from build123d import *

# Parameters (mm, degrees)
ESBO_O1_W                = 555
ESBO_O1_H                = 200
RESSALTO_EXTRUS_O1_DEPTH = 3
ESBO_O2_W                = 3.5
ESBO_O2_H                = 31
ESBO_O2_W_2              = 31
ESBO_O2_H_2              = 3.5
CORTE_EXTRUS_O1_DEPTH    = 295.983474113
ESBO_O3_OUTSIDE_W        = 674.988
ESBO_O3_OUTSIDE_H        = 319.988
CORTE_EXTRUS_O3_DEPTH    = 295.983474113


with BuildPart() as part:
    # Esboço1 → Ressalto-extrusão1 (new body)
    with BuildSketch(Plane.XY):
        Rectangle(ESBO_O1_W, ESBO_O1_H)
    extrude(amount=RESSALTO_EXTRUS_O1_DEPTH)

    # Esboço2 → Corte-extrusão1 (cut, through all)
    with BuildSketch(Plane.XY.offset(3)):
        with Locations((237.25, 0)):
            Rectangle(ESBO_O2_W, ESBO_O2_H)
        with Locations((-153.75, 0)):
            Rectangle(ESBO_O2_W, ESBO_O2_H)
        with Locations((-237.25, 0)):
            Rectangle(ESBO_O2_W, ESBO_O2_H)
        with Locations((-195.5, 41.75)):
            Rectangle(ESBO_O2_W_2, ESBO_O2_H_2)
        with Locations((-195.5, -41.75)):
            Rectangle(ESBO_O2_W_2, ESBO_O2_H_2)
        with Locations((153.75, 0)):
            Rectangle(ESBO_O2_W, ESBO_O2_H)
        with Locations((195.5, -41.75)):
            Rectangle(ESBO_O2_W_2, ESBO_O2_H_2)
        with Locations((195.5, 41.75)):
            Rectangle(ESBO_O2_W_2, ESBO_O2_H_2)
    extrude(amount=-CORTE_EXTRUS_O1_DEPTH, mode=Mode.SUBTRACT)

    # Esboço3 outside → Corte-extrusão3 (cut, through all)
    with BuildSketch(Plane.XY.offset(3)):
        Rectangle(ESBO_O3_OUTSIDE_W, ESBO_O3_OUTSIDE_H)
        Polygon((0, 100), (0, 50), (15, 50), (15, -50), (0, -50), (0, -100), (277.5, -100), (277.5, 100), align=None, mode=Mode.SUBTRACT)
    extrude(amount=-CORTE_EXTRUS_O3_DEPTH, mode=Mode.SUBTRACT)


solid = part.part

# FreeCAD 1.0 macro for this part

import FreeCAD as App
import Part
import Sketcher
from FreeCAD import Vector
Q = App.Units.Quantity

doc = App.newDocument("Part")
body = doc.addObject("PartDesign::Body", "Body")

# Sketch on XY plane
sketch1 = body.newObject("Sketcher::SketchObject", "Sketch")
sketch1.AttachmentSupport = (doc.getObject("XY_Plane"), [""])
sketch1.MapMode = "FlatFace"
sketch1.addGeometry([
    Part.LineSegment(Vector(-277.5, 100, 0), Vector(-277.5, -100, 0)),
    Part.LineSegment(Vector(-277.5, -100, 0), Vector(277.5, -100, 0)),
    Part.LineSegment(Vector(277.5, -100, 0), Vector(277.5, 100, 0)),
    Part.LineSegment(Vector(277.5, 100, 0), Vector(-277.5, 100, 0)),
], False)
sketch1.addConstraint([
    Sketcher.Constraint("Coincident", 0, 2, 1, 1),
    Sketcher.Constraint("Coincident", 1, 2, 2, 1),
    Sketcher.Constraint("Coincident", 2, 2, 3, 1),
    Sketcher.Constraint("Coincident", 3, 2, 0, 1),
    Sketcher.Constraint("Vertical", 0),
    Sketcher.Constraint("Horizontal", 1),
    Sketcher.Constraint("Vertical", 2),
    Sketcher.Constraint("Horizontal", 3),
    Sketcher.Constraint("Symmetric", 0, 2, 2, 2, -1, 1),
    Sketcher.Constraint("DistanceX", 1, 1, 1, 2, Q("555 mm")),
    Sketcher.Constraint("DistanceY", 0, 2, 0, 1, Q("200 mm")),
])
pad1 = body.newObject("PartDesign::Pad", "Pad")
pad1.Profile = sketch1
pad1.Length = 3

# Sketch on XY plane
sketch2 = body.newObject("Sketcher::SketchObject", "Sketch001")
sketch2.AttachmentSupport = (doc.getObject("XY_Plane"), [""])
sketch2.MapMode = "FlatFace"
sketch2.AttachmentOffset = App.Placement(Vector(0, 0, 3), App.Rotation())
sketch2.addGeometry([
    Part.LineSegment(Vector(235.5, 15.5, 0), Vector(235.5, -15.5, 0)),  # 0
    Part.LineSegment(Vector(235.5, -15.5, 0), Vector(239, -15.5, 0)),  # 1
    Part.LineSegment(Vector(239, -15.5, 0), Vector(239, 15.5, 0)),  # 2
    Part.LineSegment(Vector(239, 15.5, 0), Vector(235.5, 15.5, 0)),  # 3
    Part.LineSegment(Vector(-155.5, 15.5, 0), Vector(-155.5, -15.5, 0)),  # 4
    Part.LineSegment(Vector(-155.5, -15.5, 0), Vector(-152, -15.5, 0)),  # 5
    Part.LineSegment(Vector(-152, -15.5, 0), Vector(-152, 15.5, 0)),  # 6
    Part.LineSegment(Vector(-152, 15.5, 0), Vector(-155.5, 15.5, 0)),  # 7
    Part.LineSegment(Vector(-239, 15.5, 0), Vector(-239, -15.5, 0)),  # 8
    Part.LineSegment(Vector(-239, -15.5, 0), Vector(-235.5, -15.5, 0)),  # 9
    Part.LineSegment(Vector(-235.5, -15.5, 0), Vector(-235.5, 15.5, 0)),  # 10
    Part.LineSegment(Vector(-235.5, 15.5, 0), Vector(-239, 15.5, 0)),  # 11
    Part.LineSegment(Vector(-211, 43.5, 0), Vector(-211, 40, 0)),  # 12
    Part.LineSegment(Vector(-211, 40, 0), Vector(-180, 40, 0)),  # 13
    Part.LineSegment(Vector(-180, 40, 0), Vector(-180, 43.5, 0)),  # 14
    Part.LineSegment(Vector(-180, 43.5, 0), Vector(-211, 43.5, 0)),  # 15
    Part.LineSegment(Vector(-211, -40, 0), Vector(-211, -43.5, 0)),  # 16
    Part.LineSegment(Vector(-211, -43.5, 0), Vector(-180, -43.5, 0)),  # 17
    Part.LineSegment(Vector(-180, -43.5, 0), Vector(-180, -40, 0)),  # 18
    Part.LineSegment(Vector(-180, -40, 0), Vector(-211, -40, 0)),  # 19
    Part.LineSegment(Vector(152, 15.5, 0), Vector(152, -15.5, 0)),  # 20
    Part.LineSegment(Vector(152, -15.5, 0), Vector(155.5, -15.5, 0)),  # 21
    Part.LineSegment(Vector(155.5, -15.5, 0), Vector(155.5, 15.5, 0)),  # 22
    Part.LineSegment(Vector(155.5, 15.5, 0), Vector(152, 15.5, 0)),  # 23
    Part.LineSegment(Vector(180, -40, 0), Vector(180, -43.5, 0)),  # 24
    Part.LineSegment(Vector(180, -43.5, 0), Vector(211, -43.5, 0)),  # 25
    Part.LineSegment(Vector(211, -43.5, 0), Vector(211, -40, 0)),  # 26
    Part.LineSegment(Vector(211, -40, 0), Vector(180, -40, 0)),  # 27
    Part.LineSegment(Vector(180, 43.5, 0), Vector(180, 40, 0)),  # 28
    Part.LineSegment(Vector(180, 40, 0), Vector(211, 40, 0)),  # 29
    Part.LineSegment(Vector(211, 40, 0), Vector(211, 43.5, 0)),  # 30
    Part.LineSegment(Vector(211, 43.5, 0), Vector(180, 43.5, 0)),  # 31
], False)
sketch2.addConstraint([
    Sketcher.Constraint("Coincident", 0, 2, 1, 1),
    Sketcher.Constraint("Coincident", 1, 2, 2, 1),
    Sketcher.Constraint("Coincident", 2, 2, 3, 1),
    Sketcher.Constraint("Coincident", 3, 2, 0, 1),
    Sketcher.Constraint("Coincident", 4, 2, 5, 1),
    Sketcher.Constraint("Coincident", 5, 2, 6, 1),
    Sketcher.Constraint("Coincident", 6, 2, 7, 1),
    Sketcher.Constraint("Coincident", 7, 2, 4, 1),
    Sketcher.Constraint("Coincident", 8, 2, 9, 1),
    Sketcher.Constraint("Coincident", 9, 2, 10, 1),
    Sketcher.Constraint("Coincident", 10, 2, 11, 1),
    Sketcher.Constraint("Coincident", 11, 2, 8, 1),
    Sketcher.Constraint("Coincident", 12, 2, 13, 1),
    Sketcher.Constraint("Coincident", 13, 2, 14, 1),
    Sketcher.Constraint("Coincident", 14, 2, 15, 1),
    Sketcher.Constraint("Coincident", 15, 2, 12, 1),
    Sketcher.Constraint("Coincident", 16, 2, 17, 1),
    Sketcher.Constraint("Coincident", 17, 2, 18, 1),
    Sketcher.Constraint("Coincident", 18, 2, 19, 1),
    Sketcher.Constraint("Coincident", 19, 2, 16, 1),
    Sketcher.Constraint("Coincident", 20, 2, 21, 1),
    Sketcher.Constraint("Coincident", 21, 2, 22, 1),
    Sketcher.Constraint("Coincident", 22, 2, 23, 1),
    Sketcher.Constraint("Coincident", 23, 2, 20, 1),
    Sketcher.Constraint("Coincident", 24, 2, 25, 1),
    Sketcher.Constraint("Coincident", 25, 2, 26, 1),
    Sketcher.Constraint("Coincident", 26, 2, 27, 1),
    Sketcher.Constraint("Coincident", 27, 2, 24, 1),
    Sketcher.Constraint("Coincident", 28, 2, 29, 1),
    Sketcher.Constraint("Coincident", 29, 2, 30, 1),
    Sketcher.Constraint("Coincident", 30, 2, 31, 1),
    Sketcher.Constraint("Coincident", 31, 2, 28, 1),
    Sketcher.Constraint("Vertical", 0),
    Sketcher.Constraint("Horizontal", 1),
    Sketcher.Constraint("Vertical", 2),
    Sketcher.Constraint("Horizontal", 3),
    Sketcher.Constraint("Vertical", 4),
    Sketcher.Constraint("Horizontal", 5),
    Sketcher.Constraint("Vertical", 6),
    Sketcher.Constraint("Horizontal", 7),
    Sketcher.Constraint("Vertical", 8),
    Sketcher.Constraint("Horizontal", 9),
    Sketcher.Constraint("Vertical", 10),
    Sketcher.Constraint("Horizontal", 11),
    Sketcher.Constraint("Vertical", 12),
    Sketcher.Constraint("Horizontal", 13),
    Sketcher.Constraint("Vertical", 14),
    Sketcher.Constraint("Horizontal", 15),
    Sketcher.Constraint("Vertical", 16),
    Sketcher.Constraint("Horizontal", 17),
    Sketcher.Constraint("Vertical", 18),
    Sketcher.Constraint("Horizontal", 19),
    Sketcher.Constraint("Vertical", 20),
    Sketcher.Constraint("Horizontal", 21),
    Sketcher.Constraint("Vertical", 22),
    Sketcher.Constraint("Horizontal", 23),
    Sketcher.Constraint("Vertical", 24),
    Sketcher.Constraint("Horizontal", 25),
    Sketcher.Constraint("Vertical", 26),
    Sketcher.Constraint("Horizontal", 27),
    Sketcher.Constraint("Vertical", 28),
    Sketcher.Constraint("Horizontal", 29),
    Sketcher.Constraint("Vertical", 30),
    Sketcher.Constraint("Horizontal", 31),
    Sketcher.Constraint("Symmetric", 2, 2, 8, 2, -1, 1),
    Sketcher.Constraint("Symmetric", 0, 2, 10, 2, -1, 1),
    Sketcher.Constraint("Symmetric", 6, 2, 20, 2, -1, 1),
    Sketcher.Constraint("Symmetric", 4, 2, 22, 2, -1, 1),
    Sketcher.Constraint("Symmetric", 14, 2, 24, 2, -1, 1),
    Sketcher.Constraint("Symmetric", 12, 2, 26, 2, -1, 1),
    Sketcher.Constraint("Symmetric", 18, 2, 28, 2, -1, 1),
    Sketcher.Constraint("Symmetric", 16, 2, 30, 2, -1, 1),
    Sketcher.Constraint("Symmetric", 17, 2, 24, 2, -2),
    Sketcher.Constraint("Symmetric", 19, 2, 26, 2, -2),
    Sketcher.Constraint("Horizontal", 1, 2, 4, 2),
    Sketcher.Constraint("Horizontal", 3, 2, 6, 2),
    Sketcher.Constraint("Horizontal", 5, 2, 8, 2),
    Sketcher.Constraint("Equal", 3, 5),
    Sketcher.Constraint("Equal", 31, 0),
    Sketcher.Constraint("Equal", 23, 12),
    Sketcher.Constraint("DistanceX", 13, 1, 13, 2, Q("31 mm")),
    Sketcher.Constraint("DistanceX", 1, 1, 1, 2, Q("3.5 mm")),
    Sketcher.Constraint("DistanceX", -1, 1, 1, 2, Q("239 mm")),
    Sketcher.Constraint("DistanceX", 5, 2, -1, 1, Q("152 mm")),
    Sketcher.Constraint("DistanceX", 12, 2, -1, 1, Q("211 mm")),
    Sketcher.Constraint("DistanceY", -1, 1, 12, 2, Q("40 mm")),
])
pocket1 = body.newObject("PartDesign::Pocket", "Pocket")
pocket1.Profile = sketch2
pocket1.Type = "ThroughAll"

# Sketch on XY plane
sketch3 = body.newObject("Sketcher::SketchObject", "Sketch002")
sketch3.AttachmentSupport = (doc.getObject("XY_Plane"), [""])
sketch3.MapMode = "FlatFace"
sketch3.AttachmentOffset = App.Placement(Vector(0, 0, 3), App.Rotation())
sketch3.addGeometry([
    Part.LineSegment(Vector(-337.494, 159.994, 0), Vector(-337.494, -159.994, 0)),  # 0
    Part.LineSegment(Vector(-337.494, -159.994, 0), Vector(337.494, -159.994, 0)),  # 1
    Part.LineSegment(Vector(337.494, -159.994, 0), Vector(337.494, 159.994, 0)),  # 2
    Part.LineSegment(Vector(337.494, 159.994, 0), Vector(-337.494, 159.994, 0)),  # 3
    Part.LineSegment(Vector(0, 50, 0), Vector(0, 100, 0)),  # 4
    Part.LineSegment(Vector(0, 100, 0), Vector(277.5, 100, 0)),  # 5
    Part.LineSegment(Vector(277.5, 100, 0), Vector(277.5, -100, 0)),  # 6
    Part.LineSegment(Vector(277.5, -100, 0), Vector(0, -100, 0)),  # 7
    Part.LineSegment(Vector(0, -100, 0), Vector(0, -50, 0)),  # 8
    Part.LineSegment(Vector(0, -50, 0), Vector(15, -50, 0)),  # 9
    Part.LineSegment(Vector(15, -50, 0), Vector(15, 50, 0)),  # 10
    Part.LineSegment(Vector(15, 50, 0), Vector(0, 50, 0)),  # 11
], False)
sketch3.addConstraint([
    Sketcher.Constraint("Coincident", 0, 2, 1, 1),
    Sketcher.Constraint("Coincident", 1, 2, 2, 1),
    Sketcher.Constraint("Coincident", 2, 2, 3, 1),
    Sketcher.Constraint("Coincident", 3, 2, 0, 1),
    Sketcher.Constraint("Coincident", 4, 2, 5, 1),
    Sketcher.Constraint("Coincident", 5, 2, 6, 1),
    Sketcher.Constraint("Coincident", 6, 2, 7, 1),
    Sketcher.Constraint("Coincident", 7, 2, 8, 1),
    Sketcher.Constraint("Coincident", 8, 2, 9, 1),
    Sketcher.Constraint("Coincident", 9, 2, 10, 1),
    Sketcher.Constraint("Coincident", 10, 2, 11, 1),
    Sketcher.Constraint("Coincident", 11, 2, 4, 1),
    Sketcher.Constraint("Vertical", 0),
    Sketcher.Constraint("Horizontal", 1),
    Sketcher.Constraint("Vertical", 2),
    Sketcher.Constraint("Horizontal", 3),
    Sketcher.Constraint("Vertical", 4),
    Sketcher.Constraint("Horizontal", 5),
    Sketcher.Constraint("Vertical", 6),
    Sketcher.Constraint("Horizontal", 7),
    Sketcher.Constraint("Vertical", 8),
    Sketcher.Constraint("Horizontal", 9),
    Sketcher.Constraint("Vertical", 10),
    Sketcher.Constraint("Horizontal", 11),
    Sketcher.Constraint("Symmetric", 0, 2, 2, 2, -1, 1),
    Sketcher.Constraint("Symmetric", 4, 2, 7, 2, -1, 1),
    Sketcher.Constraint("Symmetric", 8, 2, 11, 2, -1),
    Sketcher.Constraint("DistanceX", 9, 1, 9, 2, Q("15 mm")),
    Sketcher.Constraint("DistanceY", 4, 1, 4, 2, Q("50 mm")),
    Sketcher.Constraint("DistanceY", 6, 2, 6, 1, Q("200 mm")),
    Sketcher.Constraint("DistanceX", 5, 1, 5, 2, Q("277.5 mm")),
    Sketcher.Constraint("DistanceX", 1, 1, 1, 2, Q("674.988 mm")),
    Sketcher.Constraint("DistanceY", 0, 2, 0, 1, Q("319.988 mm")),
])
pocket2 = body.newObject("PartDesign::Pocket", "Pocket001")
pocket2.Profile = sketch3
pocket2.Type = "ThroughAll"

doc.recompute()
